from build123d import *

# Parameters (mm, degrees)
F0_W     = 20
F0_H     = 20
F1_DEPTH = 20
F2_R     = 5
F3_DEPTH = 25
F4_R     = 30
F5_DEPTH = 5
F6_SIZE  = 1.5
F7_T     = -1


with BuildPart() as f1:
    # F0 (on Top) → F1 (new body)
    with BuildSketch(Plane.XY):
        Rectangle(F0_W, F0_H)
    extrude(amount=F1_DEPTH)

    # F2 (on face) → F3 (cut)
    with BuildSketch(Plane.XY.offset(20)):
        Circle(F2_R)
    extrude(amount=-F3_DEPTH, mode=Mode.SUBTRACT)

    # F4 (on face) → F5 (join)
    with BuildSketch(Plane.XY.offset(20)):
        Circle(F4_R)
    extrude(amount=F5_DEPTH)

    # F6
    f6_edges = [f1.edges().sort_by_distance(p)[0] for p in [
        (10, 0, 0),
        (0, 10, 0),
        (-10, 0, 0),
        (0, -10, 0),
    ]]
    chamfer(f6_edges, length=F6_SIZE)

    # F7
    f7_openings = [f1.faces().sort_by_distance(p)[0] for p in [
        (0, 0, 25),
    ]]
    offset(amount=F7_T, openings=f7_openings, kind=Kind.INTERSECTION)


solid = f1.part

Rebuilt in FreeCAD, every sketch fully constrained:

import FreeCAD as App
import Part
import Sketcher

V = App.Vector
Q = App.Units.Quantity


def edges_at(feature, points):
    """Names of the edges that pass closest to the given points."""
    edges = feature.Shape.Edges
    near = lambda p: min(range(len(edges)), key=lambda i: edges[i].distToShape(Part.Vertex(*p))[0])
    return sorted({f"Edge{near(p) + 1}" for p in points})


def faces_at(feature, points):
    """Names of the faces that lie closest to the given points."""
    faces = feature.Shape.Faces
    near = lambda p: min(range(len(faces)), key=lambda i: faces[i].distToShape(Part.Vertex(*p))[0])
    return sorted({f"Face{near(p) + 1}" for p in points})


def add_polygon(sketch, points):
    """Adds a closed chain of lines whose ends are joined by coincident constraints."""
    first, n = sketch.GeometryCount, len(points)
    for a, b in zip(points, points[1:] + points[:1]):
        sketch.addGeometry(Part.LineSegment(App.Vector(*a, 0), App.Vector(*b, 0)), False)
    for i in range(n):
        sketch.addConstraint(Sketcher.Constraint("Coincident", first + i, 2, first + (i + 1) % n, 1))

doc = App.newDocument("Part")
body = doc.addObject("PartDesign::Body", "Body")

# Sketch on XY plane
sketch1 = body.newObject("Sketcher::SketchObject", "Sketch")
sketch1.AttachmentSupport = (doc.getObject("XY_Plane"), [""])
sketch1.MapMode = "FlatFace"
add_polygon(sketch1, [(-10, 10), (-10, -10), (10, -10), (10, 10)])  # lines 0-3
sketch1.addConstraint([
    Sketcher.Constraint("Vertical", 0),
    Sketcher.Constraint("Horizontal", 1),
    Sketcher.Constraint("Vertical", 2),
    Sketcher.Constraint("Horizontal", 3),
    Sketcher.Constraint("Symmetric", 0, 2, 2, 2, -1, 1),
    Sketcher.Constraint("Equal", 3, 0),
    Sketcher.Constraint("DistanceX", 1, 1, 1, 2, Q("20 mm")),
])
pad1 = body.newObject("PartDesign::Pad", "Pad")
pad1.Profile = sketch1
pad1.Length = 20

# Sketch on XY plane
sketch2 = body.newObject("Sketcher::SketchObject", "Sketch001")
sketch2.AttachmentSupport = (doc.getObject("XY_Plane"), [""])
sketch2.MapMode = "FlatFace"
sketch2.AttachmentOffset = App.Placement(V(0, 0, 20), App.Rotation())
sketch2.addGeometry(Part.Circle(V(0, 0, 0), V(0, 0, 1), 5), False)
sketch2.addConstraint([
    Sketcher.Constraint("Coincident", 0, 3, -1, 1),
    Sketcher.Constraint("Diameter", 0, Q("10 mm")),
])
pocket1 = body.newObject("PartDesign::Pocket", "Pocket")
pocket1.Profile = sketch2
pocket1.Length = 25

# Sketch on XY plane
sketch3 = body.newObject("Sketcher::SketchObject", "Sketch002")
sketch3.AttachmentSupport = (doc.getObject("XY_Plane"), [""])
sketch3.MapMode = "FlatFace"
sketch3.AttachmentOffset = App.Placement(V(0, 0, 20), App.Rotation())
sketch3.addGeometry(Part.Circle(V(0, 0, 0), V(0, 0, 1), 30), False)
sketch3.addConstraint([
    Sketcher.Constraint("Coincident", 0, 3, -1, 1),
    Sketcher.Constraint("Diameter", 0, Q("60 mm")),
])
pad2 = body.newObject("PartDesign::Pad", "Pad001")
pad2.Profile = sketch3
pad2.Length = 5
doc.recompute()

chamfer = body.newObject("PartDesign::Chamfer", "Chamfer")
chamfer.Base = (pad2, edges_at(pad2, [
    (10, 0, 0),
    (0, 10, 0),
    (-10, 0, 0),
    (0, -10, 0),
]))
chamfer.Size = 1.5
doc.recompute()

thickness = body.newObject("PartDesign::Thickness", "Thickness")
thickness.Base = (chamfer, faces_at(chamfer, [(0, 0, 25)]))
thickness.Value = 1
thickness.Reversed = True
thickness.Join = "Intersection"

doc.recompute()
